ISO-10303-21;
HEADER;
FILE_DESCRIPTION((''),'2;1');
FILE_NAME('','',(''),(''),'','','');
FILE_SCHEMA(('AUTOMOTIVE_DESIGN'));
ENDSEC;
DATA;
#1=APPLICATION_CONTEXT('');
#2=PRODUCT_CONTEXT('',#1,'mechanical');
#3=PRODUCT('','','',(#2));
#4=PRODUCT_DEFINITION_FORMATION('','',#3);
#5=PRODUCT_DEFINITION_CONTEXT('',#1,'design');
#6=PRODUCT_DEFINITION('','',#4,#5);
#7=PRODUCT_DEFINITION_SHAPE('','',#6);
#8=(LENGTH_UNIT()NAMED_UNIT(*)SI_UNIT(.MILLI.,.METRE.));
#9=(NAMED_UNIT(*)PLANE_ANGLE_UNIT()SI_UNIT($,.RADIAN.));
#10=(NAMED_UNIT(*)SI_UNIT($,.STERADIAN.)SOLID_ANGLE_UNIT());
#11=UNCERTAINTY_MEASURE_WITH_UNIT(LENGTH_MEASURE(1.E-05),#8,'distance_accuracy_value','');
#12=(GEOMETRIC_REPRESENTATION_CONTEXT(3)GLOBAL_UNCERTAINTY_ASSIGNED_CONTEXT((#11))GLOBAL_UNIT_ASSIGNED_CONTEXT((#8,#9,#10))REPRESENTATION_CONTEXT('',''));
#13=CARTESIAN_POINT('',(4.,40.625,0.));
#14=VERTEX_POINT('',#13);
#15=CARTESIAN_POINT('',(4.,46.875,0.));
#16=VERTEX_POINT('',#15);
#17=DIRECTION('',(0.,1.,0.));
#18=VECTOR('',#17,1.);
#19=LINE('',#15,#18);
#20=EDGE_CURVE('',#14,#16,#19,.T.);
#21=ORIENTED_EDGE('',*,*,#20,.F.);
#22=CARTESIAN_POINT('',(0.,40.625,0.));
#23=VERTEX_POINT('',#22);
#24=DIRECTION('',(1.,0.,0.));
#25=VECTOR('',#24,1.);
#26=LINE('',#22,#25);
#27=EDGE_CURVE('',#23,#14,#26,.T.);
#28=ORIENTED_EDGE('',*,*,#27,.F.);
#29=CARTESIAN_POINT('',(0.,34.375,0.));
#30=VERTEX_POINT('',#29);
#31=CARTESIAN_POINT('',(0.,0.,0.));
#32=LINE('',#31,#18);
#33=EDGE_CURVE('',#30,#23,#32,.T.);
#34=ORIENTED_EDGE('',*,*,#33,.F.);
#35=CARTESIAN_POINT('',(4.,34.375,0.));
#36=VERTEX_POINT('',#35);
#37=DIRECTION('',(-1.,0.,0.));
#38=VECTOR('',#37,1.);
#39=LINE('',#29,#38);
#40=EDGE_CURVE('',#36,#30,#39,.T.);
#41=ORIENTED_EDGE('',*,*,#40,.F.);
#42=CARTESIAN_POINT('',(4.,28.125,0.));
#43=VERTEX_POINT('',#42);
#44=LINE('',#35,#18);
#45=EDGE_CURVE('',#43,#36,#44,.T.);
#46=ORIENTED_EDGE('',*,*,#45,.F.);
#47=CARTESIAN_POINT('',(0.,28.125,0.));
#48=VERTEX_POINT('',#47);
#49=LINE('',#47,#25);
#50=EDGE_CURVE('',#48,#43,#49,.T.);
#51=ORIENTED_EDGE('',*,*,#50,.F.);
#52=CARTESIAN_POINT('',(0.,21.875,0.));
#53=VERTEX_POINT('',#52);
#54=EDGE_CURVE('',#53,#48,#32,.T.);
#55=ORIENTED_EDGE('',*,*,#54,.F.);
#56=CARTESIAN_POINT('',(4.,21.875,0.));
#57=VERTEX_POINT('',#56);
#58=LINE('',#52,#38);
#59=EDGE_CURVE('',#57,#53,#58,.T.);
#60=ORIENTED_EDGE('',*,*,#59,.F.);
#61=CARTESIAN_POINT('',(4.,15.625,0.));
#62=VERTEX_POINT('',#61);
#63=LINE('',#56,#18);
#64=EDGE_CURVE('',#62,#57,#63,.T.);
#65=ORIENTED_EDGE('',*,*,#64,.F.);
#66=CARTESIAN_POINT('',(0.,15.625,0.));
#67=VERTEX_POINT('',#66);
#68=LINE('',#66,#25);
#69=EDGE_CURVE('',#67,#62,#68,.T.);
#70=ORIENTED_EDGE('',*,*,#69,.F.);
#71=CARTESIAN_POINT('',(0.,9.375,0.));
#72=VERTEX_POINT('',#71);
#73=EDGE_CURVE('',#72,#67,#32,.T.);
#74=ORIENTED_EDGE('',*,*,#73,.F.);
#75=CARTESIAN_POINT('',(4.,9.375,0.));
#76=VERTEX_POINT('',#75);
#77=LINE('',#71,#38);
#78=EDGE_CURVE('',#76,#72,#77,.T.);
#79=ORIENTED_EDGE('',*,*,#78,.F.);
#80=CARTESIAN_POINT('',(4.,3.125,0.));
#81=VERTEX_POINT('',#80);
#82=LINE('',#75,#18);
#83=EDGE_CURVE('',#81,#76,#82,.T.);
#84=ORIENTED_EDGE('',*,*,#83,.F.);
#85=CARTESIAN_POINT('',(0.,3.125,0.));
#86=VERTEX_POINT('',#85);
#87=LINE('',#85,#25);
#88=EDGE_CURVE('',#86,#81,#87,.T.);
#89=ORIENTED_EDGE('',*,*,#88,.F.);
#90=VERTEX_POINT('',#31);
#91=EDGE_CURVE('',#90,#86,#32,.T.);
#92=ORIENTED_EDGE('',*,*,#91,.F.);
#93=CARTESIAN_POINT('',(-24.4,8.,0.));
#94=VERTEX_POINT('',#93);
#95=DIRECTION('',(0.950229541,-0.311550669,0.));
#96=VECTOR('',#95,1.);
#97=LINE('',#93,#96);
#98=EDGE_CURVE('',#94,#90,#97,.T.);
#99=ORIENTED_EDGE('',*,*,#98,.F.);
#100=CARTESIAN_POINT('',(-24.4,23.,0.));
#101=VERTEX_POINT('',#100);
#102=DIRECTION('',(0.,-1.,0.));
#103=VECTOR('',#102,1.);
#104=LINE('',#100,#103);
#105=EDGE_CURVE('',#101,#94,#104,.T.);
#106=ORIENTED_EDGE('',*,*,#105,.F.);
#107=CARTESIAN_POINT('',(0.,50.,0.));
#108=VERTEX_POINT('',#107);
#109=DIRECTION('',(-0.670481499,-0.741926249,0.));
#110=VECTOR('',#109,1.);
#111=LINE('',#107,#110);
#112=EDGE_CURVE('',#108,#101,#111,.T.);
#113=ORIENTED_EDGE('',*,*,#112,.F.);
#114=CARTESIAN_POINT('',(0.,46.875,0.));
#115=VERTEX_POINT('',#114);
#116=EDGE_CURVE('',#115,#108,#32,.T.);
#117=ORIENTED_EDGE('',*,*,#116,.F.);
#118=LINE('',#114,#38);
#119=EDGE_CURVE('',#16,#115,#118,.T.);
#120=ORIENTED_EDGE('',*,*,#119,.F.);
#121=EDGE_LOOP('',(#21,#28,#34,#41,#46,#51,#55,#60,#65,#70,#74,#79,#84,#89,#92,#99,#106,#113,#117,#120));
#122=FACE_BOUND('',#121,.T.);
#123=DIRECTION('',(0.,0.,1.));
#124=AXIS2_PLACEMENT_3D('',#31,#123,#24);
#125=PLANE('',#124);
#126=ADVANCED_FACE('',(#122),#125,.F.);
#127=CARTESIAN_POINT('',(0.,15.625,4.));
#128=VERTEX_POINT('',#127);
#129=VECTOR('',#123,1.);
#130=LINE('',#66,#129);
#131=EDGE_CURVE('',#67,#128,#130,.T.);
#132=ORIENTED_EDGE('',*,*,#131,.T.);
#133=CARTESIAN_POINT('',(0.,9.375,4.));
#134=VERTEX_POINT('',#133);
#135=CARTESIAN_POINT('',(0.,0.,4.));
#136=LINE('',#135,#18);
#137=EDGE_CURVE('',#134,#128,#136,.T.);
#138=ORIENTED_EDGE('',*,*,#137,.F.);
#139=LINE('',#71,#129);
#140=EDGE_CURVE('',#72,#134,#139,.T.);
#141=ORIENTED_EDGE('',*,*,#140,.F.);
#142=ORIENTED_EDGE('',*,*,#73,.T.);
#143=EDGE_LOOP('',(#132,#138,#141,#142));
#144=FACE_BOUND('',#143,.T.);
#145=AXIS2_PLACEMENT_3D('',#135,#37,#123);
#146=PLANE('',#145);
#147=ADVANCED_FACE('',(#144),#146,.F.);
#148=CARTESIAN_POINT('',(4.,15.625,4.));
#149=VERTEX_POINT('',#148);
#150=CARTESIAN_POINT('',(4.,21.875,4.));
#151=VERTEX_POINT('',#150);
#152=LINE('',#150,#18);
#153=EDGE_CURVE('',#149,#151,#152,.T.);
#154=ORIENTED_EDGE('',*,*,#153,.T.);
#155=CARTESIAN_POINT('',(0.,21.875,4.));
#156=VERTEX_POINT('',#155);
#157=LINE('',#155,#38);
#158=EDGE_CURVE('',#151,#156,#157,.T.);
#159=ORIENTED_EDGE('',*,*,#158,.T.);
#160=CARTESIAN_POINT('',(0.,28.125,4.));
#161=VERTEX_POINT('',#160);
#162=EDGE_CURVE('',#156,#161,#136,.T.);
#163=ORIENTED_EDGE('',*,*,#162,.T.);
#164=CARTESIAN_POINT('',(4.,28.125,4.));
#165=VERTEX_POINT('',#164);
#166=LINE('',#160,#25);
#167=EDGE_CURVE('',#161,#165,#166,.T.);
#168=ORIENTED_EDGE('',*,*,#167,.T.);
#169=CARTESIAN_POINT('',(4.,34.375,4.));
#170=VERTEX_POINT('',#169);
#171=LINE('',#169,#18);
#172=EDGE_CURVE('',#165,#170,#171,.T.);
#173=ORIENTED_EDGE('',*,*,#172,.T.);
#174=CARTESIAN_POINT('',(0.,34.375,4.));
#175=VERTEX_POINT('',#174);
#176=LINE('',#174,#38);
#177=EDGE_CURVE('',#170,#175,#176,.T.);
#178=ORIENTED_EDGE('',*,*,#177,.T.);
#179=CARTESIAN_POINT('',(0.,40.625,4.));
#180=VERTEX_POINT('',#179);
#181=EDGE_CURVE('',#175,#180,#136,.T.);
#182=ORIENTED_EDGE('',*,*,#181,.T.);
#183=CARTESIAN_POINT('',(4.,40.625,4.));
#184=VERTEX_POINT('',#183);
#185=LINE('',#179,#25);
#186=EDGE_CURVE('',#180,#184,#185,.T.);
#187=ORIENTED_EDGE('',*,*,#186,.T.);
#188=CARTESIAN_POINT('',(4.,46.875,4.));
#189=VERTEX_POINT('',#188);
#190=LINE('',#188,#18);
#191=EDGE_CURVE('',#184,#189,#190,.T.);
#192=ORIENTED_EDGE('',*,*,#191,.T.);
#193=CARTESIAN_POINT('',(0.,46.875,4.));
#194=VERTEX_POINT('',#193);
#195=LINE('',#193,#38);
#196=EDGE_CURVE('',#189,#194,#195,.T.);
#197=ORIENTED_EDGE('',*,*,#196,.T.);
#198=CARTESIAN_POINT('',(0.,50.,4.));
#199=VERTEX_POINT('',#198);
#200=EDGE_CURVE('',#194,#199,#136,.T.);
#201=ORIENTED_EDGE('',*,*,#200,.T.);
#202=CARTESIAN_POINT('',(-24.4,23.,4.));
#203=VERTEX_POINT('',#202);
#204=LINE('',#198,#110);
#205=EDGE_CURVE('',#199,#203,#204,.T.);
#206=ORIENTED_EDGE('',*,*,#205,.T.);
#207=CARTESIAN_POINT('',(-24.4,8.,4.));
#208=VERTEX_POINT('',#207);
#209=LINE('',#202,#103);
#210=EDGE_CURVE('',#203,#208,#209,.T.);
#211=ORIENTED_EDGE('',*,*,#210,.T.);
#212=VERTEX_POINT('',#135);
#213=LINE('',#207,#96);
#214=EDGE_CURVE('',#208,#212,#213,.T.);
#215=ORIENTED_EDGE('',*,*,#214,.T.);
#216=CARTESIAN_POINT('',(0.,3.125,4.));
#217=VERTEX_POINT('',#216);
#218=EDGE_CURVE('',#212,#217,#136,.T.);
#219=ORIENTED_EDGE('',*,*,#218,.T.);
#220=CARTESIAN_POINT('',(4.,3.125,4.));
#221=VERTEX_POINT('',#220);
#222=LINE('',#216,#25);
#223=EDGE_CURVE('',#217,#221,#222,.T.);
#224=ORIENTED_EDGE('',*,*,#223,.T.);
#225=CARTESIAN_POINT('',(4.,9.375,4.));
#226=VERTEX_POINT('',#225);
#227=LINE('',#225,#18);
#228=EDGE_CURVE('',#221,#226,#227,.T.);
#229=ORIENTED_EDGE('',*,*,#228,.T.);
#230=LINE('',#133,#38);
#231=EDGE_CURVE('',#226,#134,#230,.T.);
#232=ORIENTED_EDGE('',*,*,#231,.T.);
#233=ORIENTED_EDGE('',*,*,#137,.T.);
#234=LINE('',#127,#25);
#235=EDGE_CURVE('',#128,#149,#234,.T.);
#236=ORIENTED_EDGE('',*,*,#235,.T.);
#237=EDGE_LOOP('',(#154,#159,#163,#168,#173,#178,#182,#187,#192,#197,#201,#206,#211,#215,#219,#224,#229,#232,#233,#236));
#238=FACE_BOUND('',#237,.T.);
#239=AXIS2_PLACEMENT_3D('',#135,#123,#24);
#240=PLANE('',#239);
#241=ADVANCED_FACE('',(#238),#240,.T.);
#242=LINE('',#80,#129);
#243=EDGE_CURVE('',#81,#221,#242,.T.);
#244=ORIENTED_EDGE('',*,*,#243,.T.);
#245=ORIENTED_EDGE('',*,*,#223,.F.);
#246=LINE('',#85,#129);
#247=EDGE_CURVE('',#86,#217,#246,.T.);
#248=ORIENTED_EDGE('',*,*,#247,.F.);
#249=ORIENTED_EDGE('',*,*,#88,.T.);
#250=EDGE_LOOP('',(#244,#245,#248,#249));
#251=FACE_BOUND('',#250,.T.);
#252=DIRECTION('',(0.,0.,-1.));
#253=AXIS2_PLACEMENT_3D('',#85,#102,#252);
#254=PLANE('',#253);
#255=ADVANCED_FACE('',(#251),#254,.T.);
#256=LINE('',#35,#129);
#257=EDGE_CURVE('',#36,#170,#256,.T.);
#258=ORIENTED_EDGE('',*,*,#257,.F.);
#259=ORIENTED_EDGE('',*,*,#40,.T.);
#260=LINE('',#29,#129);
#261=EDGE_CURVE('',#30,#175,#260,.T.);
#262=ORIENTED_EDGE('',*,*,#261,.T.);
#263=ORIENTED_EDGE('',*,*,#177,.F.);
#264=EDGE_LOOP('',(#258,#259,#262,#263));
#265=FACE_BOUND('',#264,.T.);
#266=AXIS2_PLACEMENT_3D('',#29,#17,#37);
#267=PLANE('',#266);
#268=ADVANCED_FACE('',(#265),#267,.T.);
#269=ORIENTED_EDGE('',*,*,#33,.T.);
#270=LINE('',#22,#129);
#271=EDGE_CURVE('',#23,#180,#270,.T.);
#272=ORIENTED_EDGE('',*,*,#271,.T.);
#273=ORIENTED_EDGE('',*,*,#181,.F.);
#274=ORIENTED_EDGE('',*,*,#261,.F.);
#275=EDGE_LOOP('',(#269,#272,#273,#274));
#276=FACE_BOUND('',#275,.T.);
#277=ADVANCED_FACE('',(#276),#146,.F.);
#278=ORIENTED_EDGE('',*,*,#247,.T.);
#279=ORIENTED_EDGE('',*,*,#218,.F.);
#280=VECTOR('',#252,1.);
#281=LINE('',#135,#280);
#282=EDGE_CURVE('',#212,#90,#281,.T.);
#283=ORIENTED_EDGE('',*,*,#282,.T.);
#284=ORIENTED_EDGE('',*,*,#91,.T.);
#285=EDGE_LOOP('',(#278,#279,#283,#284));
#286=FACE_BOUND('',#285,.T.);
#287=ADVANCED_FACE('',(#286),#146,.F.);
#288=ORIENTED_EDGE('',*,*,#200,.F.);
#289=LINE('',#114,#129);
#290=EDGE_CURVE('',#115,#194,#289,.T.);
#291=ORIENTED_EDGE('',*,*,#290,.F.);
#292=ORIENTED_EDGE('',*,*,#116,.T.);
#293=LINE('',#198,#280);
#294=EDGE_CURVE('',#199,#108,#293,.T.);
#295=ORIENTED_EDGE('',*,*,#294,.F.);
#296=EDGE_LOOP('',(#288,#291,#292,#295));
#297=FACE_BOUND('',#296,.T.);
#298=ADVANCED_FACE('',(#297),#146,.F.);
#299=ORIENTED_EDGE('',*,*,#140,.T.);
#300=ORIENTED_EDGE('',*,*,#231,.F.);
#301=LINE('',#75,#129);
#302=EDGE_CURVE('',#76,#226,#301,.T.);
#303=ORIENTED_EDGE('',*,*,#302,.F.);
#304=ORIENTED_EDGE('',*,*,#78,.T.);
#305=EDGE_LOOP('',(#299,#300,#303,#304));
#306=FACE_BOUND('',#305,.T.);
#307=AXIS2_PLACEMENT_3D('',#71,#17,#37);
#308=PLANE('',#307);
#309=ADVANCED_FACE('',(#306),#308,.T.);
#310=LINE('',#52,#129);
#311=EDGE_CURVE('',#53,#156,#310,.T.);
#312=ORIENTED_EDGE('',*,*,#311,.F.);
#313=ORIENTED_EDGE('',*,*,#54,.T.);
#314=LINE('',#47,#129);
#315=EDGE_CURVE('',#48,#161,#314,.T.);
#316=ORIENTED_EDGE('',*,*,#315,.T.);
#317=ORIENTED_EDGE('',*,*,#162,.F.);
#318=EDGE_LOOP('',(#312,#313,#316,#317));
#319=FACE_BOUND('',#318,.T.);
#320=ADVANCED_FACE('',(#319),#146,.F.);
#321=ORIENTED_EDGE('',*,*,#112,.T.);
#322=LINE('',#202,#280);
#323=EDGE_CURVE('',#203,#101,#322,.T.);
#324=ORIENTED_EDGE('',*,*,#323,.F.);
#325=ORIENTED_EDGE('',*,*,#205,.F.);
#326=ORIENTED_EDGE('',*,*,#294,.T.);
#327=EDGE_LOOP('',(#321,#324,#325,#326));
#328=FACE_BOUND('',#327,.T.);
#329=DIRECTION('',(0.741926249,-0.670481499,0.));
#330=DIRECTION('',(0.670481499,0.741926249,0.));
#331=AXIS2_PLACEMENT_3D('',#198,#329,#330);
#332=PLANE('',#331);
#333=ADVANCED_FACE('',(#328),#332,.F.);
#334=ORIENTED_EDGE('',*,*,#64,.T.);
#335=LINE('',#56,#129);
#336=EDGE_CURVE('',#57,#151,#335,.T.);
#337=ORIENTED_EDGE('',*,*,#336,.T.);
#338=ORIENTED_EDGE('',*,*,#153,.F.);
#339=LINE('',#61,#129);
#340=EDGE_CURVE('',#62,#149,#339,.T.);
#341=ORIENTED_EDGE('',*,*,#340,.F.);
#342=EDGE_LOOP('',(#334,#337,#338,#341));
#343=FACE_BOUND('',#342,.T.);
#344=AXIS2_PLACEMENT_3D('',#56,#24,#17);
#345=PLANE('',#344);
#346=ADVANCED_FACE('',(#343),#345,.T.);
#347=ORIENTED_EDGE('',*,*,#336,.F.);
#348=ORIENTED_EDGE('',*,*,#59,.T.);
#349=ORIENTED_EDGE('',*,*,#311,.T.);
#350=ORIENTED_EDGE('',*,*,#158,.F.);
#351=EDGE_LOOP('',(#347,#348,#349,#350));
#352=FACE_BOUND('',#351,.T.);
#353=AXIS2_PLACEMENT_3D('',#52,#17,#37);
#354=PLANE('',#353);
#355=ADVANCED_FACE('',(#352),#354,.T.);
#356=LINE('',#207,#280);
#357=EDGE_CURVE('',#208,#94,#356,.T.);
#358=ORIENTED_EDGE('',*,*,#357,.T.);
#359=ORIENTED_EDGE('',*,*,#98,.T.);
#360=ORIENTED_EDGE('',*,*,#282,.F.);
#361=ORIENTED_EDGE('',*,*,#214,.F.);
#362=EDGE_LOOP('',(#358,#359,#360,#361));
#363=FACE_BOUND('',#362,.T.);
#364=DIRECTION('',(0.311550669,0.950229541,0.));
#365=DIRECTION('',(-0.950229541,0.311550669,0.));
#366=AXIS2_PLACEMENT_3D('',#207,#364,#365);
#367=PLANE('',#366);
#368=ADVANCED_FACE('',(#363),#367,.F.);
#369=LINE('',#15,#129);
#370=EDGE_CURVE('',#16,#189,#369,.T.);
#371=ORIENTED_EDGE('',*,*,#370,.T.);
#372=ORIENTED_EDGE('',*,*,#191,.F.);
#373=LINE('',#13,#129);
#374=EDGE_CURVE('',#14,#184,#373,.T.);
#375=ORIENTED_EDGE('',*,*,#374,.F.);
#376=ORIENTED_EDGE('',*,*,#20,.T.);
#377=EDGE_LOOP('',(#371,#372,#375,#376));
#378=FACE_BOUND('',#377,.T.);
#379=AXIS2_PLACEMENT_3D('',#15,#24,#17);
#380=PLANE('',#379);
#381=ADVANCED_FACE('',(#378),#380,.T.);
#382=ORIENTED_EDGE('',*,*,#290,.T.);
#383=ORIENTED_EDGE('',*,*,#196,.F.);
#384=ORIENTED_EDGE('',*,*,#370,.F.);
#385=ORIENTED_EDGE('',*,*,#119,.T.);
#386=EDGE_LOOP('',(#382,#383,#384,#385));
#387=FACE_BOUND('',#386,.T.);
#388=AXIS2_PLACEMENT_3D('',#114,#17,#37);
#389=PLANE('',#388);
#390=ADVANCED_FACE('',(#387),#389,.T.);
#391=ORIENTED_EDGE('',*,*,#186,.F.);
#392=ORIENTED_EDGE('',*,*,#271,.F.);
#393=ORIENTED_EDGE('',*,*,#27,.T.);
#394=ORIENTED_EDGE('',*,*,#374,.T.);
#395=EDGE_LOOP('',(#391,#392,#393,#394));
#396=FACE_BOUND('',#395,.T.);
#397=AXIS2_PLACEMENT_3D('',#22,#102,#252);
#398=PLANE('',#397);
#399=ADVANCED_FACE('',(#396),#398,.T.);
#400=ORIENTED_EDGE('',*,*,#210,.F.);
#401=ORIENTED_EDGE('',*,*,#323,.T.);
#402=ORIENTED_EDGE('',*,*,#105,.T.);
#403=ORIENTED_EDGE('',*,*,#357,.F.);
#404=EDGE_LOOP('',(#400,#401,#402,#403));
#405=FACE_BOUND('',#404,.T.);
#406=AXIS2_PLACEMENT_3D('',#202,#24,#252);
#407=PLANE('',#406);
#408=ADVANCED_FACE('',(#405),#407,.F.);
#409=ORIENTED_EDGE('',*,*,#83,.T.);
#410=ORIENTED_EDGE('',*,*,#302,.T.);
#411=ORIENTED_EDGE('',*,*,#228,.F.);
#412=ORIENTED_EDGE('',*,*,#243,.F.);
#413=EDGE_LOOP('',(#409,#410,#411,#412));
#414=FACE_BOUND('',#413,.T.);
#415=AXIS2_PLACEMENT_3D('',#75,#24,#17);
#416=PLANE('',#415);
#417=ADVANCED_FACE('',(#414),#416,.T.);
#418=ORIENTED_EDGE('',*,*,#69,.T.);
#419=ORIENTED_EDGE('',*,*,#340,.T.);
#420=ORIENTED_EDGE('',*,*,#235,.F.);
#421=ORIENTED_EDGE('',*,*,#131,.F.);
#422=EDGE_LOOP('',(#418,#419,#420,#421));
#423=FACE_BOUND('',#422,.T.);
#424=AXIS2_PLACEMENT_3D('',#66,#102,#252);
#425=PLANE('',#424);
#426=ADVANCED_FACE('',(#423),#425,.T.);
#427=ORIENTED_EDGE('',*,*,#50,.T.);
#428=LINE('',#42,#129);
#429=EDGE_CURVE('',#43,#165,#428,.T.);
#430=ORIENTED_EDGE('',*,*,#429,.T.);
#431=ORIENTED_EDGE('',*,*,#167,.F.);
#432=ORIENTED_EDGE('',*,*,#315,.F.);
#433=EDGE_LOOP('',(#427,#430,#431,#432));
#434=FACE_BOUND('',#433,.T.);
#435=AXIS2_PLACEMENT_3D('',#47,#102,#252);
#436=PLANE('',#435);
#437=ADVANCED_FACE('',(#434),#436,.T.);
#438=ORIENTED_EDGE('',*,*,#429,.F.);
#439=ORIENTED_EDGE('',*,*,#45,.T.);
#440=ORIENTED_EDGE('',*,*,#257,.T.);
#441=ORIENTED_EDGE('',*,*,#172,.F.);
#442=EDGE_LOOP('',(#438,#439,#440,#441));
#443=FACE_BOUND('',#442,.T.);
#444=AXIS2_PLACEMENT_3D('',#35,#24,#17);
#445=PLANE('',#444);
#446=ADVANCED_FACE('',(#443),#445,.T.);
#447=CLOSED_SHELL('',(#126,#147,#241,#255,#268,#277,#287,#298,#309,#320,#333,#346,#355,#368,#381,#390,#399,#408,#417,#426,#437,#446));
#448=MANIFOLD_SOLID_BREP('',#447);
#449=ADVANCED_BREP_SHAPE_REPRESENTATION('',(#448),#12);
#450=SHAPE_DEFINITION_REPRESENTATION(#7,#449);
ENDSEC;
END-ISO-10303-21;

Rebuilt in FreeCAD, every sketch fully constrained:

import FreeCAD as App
import Part
import Sketcher

V = App.Vector


def add_polygon(sketch, points):
    """Adds a closed chain of lines whose ends are joined by coincident constraints."""
    first, n = sketch.GeometryCount, len(points)
    for a, b in zip(points, points[1:] + points[:1]):
        sketch.addGeometry(Part.LineSegment(App.Vector(*a, 0), App.Vector(*b, 0)), False)
    for i in range(n):
        sketch.addConstraint(Sketcher.Constraint("Coincident", first + i, 2, first + (i + 1) % n, 1))

doc = App.newDocument("Part")
body = doc.addObject("PartDesign::Body", "Body")

# Sketch on XY plane
sketch1 = body.newObject("Sketcher::SketchObject", "Sketch")
sketch1.AttachmentSupport = (doc.getObject("XY_Plane"), [""])
sketch1.MapMode = "FlatFace"
add_polygon(sketch1, [(-24, 23), (-24, 8), (0, 0), (0, 50)])  # lines 0-3
sketch1.addConstraint(Sketcher.Constraint("Vertical", 0))
sketch1.addConstraint(Sketcher.Constraint("Vertical", 2))
sketch1.addConstraint(Sketcher.Constraint("Coincident", 1, 2, -1, 1))
sketch1.addConstraint(Sketcher.Constraint("DistanceY", 0, 2, 0, 1, 15.0))
sketch1.addConstraint(Sketcher.Constraint("DistanceY", 2, 1, 2, 2, 50.0))
sketch1.addConstraint(Sketcher.Constraint("DistanceY", -1, 1, 0, 2, 8.0))
sketch1.addConstraint(Sketcher.Constraint("DistanceX", 0, 2, -1, 1, 24.4))
pad1 = body.newObject("PartDesign::Pad", "Pad")
pad1.Profile = sketch1
pad1.Length = 4

# Sketch on XY plane
sketch2 = body.newObject("Sketcher::SketchObject", "Sketch001")
sketch2.AttachmentSupport = (doc.getObject("XY_Plane"), [""])
sketch2.MapMode = "FlatFace"
sketch2.AttachmentOffset = App.Placement(V(0, 0, 4), App.Rotation())
add_polygon(sketch2, [(0, 46.9), (0, 40.6), (4, 40.6), (4, 46.9)])  # lines 0-3
sketch2.addConstraint(Sketcher.Constraint("Vertical", 0))
sketch2.addConstraint(Sketcher.Constraint("Horizontal", 1))
sketch2.addConstraint(Sketcher.Constraint("Vertical", 2))
sketch2.addConstraint(Sketcher.Constraint("Horizontal", 3))
sketch2.addConstraint(Sketcher.Constraint("PointOnObject", 0, 2, -2))
sketch2.addConstraint(Sketcher.Constraint("DistanceX", 1, 1, 1, 2, 4.0))
sketch2.addConstraint(Sketcher.Constraint("DistanceY", 0, 2, 0, 1, 6.25))
sketch2.addConstraint(Sketcher.Constraint("DistanceY", -1, 1, 0, 2, 40.625))
pad2 = body.newObject("PartDesign::Pad", "Pad001")
pad2.Profile = sketch2
pad2.Length = 4
pad2.Reversed = True
doc.recompute()

linearpattern = body.newObject("PartDesign::LinearPattern", "LinearPattern")
linearpattern.Originals = [pad2]
linearpattern.Direction = (doc.getObject("Y_Axis"), [""])
linearpattern.Mode = "offset"
linearpattern.Offset = 12.5
linearpattern.Occurrences = 4
linearpattern.Reversed = True
body.Tip = linearpattern

doc.recompute()
